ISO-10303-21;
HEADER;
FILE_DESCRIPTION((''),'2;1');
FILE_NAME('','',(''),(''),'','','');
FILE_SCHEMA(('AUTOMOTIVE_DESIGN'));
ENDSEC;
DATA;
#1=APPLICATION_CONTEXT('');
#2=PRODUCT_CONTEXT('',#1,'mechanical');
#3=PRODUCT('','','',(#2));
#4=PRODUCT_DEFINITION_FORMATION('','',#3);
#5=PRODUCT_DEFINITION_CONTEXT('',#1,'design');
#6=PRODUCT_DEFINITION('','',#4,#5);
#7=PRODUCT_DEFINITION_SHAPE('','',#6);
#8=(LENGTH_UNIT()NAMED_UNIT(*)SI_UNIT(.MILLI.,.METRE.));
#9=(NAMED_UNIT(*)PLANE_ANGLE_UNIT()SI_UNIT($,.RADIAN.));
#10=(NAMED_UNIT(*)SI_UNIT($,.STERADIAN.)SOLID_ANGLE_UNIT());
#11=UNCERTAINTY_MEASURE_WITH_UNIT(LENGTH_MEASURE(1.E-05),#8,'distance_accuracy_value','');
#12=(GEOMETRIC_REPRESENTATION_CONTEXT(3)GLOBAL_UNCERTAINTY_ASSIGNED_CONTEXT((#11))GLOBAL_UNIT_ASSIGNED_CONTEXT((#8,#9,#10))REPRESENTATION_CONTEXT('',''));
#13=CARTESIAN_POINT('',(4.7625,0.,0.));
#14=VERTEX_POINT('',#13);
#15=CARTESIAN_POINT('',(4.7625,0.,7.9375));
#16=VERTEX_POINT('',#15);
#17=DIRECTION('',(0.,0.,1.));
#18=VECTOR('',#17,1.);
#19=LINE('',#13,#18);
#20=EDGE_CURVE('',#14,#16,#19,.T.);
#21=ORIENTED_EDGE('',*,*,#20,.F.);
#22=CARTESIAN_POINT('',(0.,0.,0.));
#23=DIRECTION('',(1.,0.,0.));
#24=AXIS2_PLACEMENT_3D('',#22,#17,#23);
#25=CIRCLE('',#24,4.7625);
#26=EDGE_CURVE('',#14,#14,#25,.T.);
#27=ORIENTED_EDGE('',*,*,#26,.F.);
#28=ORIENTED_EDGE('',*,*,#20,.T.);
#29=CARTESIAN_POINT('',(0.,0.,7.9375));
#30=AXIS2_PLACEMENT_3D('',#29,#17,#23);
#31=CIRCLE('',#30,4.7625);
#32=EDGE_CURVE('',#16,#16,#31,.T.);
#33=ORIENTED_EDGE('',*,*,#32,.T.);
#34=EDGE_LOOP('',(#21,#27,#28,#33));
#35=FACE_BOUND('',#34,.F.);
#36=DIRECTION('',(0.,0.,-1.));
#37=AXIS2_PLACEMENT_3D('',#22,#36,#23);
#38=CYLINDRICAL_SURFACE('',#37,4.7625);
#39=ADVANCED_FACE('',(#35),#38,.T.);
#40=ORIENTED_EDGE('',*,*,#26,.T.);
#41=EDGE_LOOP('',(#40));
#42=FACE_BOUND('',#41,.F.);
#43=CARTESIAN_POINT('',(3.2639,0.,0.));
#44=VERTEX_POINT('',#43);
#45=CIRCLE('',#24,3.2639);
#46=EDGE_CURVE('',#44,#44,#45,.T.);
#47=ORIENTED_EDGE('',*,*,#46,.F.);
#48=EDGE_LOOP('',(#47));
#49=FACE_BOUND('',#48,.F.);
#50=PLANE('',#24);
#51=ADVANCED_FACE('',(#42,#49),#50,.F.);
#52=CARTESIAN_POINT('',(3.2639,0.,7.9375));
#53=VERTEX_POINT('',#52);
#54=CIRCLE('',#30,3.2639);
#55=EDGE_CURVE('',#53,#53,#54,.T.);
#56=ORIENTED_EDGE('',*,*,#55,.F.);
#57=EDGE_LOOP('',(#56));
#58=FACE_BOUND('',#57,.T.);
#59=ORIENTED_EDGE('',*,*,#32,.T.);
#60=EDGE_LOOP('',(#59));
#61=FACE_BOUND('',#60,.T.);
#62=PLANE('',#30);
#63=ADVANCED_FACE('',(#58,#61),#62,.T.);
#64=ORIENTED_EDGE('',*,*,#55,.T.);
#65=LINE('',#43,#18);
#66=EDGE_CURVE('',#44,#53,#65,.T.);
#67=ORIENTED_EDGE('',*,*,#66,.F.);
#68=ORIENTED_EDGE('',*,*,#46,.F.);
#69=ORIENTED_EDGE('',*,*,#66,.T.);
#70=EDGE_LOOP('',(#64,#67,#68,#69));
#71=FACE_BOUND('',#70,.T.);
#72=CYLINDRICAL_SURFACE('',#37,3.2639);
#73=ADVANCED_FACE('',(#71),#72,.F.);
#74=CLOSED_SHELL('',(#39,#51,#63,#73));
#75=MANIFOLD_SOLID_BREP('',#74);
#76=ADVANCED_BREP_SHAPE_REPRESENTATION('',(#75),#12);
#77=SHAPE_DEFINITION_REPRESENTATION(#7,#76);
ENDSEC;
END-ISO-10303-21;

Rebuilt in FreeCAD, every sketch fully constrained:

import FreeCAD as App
import Part
import Sketcher
from FreeCAD import Vector
Q = App.Units.Quantity

doc = App.newDocument("Part")
body = doc.addObject("PartDesign::Body", "Body")

# Sketch on XY plane
sketch1 = body.newObject("Sketcher::SketchObject", "Sketch")
sketch1.AttachmentSupport = (doc.getObject("XY_Plane"), [""])
sketch1.MapMode = "FlatFace"
sketch1.addGeometry(Part.Circle(Vector(0, 0, 0), Vector(0, 0, 1), 4.8), False)
sketch1.addGeometry(Part.Circle(Vector(0, 0, 0), Vector(0, 0, 1), 3.3), False)
sketch1.addConstraint(Sketcher.Constraint("Coincident", 0, 3, -1, 1))
sketch1.addConstraint(Sketcher.Constraint("Coincident", 1, 3, -1, 1))
sketch1.addConstraint(Sketcher.Constraint("Diameter", 0, Q("0.375 in")))
sketch1.addConstraint(Sketcher.Constraint("Diameter", 1, Q("0.257 in")))
pad1 = body.newObject("PartDesign::Pad", "Pad")
pad1.Profile = sketch1
pad1.Length = Q("0.3125 in")

doc.recompute()
